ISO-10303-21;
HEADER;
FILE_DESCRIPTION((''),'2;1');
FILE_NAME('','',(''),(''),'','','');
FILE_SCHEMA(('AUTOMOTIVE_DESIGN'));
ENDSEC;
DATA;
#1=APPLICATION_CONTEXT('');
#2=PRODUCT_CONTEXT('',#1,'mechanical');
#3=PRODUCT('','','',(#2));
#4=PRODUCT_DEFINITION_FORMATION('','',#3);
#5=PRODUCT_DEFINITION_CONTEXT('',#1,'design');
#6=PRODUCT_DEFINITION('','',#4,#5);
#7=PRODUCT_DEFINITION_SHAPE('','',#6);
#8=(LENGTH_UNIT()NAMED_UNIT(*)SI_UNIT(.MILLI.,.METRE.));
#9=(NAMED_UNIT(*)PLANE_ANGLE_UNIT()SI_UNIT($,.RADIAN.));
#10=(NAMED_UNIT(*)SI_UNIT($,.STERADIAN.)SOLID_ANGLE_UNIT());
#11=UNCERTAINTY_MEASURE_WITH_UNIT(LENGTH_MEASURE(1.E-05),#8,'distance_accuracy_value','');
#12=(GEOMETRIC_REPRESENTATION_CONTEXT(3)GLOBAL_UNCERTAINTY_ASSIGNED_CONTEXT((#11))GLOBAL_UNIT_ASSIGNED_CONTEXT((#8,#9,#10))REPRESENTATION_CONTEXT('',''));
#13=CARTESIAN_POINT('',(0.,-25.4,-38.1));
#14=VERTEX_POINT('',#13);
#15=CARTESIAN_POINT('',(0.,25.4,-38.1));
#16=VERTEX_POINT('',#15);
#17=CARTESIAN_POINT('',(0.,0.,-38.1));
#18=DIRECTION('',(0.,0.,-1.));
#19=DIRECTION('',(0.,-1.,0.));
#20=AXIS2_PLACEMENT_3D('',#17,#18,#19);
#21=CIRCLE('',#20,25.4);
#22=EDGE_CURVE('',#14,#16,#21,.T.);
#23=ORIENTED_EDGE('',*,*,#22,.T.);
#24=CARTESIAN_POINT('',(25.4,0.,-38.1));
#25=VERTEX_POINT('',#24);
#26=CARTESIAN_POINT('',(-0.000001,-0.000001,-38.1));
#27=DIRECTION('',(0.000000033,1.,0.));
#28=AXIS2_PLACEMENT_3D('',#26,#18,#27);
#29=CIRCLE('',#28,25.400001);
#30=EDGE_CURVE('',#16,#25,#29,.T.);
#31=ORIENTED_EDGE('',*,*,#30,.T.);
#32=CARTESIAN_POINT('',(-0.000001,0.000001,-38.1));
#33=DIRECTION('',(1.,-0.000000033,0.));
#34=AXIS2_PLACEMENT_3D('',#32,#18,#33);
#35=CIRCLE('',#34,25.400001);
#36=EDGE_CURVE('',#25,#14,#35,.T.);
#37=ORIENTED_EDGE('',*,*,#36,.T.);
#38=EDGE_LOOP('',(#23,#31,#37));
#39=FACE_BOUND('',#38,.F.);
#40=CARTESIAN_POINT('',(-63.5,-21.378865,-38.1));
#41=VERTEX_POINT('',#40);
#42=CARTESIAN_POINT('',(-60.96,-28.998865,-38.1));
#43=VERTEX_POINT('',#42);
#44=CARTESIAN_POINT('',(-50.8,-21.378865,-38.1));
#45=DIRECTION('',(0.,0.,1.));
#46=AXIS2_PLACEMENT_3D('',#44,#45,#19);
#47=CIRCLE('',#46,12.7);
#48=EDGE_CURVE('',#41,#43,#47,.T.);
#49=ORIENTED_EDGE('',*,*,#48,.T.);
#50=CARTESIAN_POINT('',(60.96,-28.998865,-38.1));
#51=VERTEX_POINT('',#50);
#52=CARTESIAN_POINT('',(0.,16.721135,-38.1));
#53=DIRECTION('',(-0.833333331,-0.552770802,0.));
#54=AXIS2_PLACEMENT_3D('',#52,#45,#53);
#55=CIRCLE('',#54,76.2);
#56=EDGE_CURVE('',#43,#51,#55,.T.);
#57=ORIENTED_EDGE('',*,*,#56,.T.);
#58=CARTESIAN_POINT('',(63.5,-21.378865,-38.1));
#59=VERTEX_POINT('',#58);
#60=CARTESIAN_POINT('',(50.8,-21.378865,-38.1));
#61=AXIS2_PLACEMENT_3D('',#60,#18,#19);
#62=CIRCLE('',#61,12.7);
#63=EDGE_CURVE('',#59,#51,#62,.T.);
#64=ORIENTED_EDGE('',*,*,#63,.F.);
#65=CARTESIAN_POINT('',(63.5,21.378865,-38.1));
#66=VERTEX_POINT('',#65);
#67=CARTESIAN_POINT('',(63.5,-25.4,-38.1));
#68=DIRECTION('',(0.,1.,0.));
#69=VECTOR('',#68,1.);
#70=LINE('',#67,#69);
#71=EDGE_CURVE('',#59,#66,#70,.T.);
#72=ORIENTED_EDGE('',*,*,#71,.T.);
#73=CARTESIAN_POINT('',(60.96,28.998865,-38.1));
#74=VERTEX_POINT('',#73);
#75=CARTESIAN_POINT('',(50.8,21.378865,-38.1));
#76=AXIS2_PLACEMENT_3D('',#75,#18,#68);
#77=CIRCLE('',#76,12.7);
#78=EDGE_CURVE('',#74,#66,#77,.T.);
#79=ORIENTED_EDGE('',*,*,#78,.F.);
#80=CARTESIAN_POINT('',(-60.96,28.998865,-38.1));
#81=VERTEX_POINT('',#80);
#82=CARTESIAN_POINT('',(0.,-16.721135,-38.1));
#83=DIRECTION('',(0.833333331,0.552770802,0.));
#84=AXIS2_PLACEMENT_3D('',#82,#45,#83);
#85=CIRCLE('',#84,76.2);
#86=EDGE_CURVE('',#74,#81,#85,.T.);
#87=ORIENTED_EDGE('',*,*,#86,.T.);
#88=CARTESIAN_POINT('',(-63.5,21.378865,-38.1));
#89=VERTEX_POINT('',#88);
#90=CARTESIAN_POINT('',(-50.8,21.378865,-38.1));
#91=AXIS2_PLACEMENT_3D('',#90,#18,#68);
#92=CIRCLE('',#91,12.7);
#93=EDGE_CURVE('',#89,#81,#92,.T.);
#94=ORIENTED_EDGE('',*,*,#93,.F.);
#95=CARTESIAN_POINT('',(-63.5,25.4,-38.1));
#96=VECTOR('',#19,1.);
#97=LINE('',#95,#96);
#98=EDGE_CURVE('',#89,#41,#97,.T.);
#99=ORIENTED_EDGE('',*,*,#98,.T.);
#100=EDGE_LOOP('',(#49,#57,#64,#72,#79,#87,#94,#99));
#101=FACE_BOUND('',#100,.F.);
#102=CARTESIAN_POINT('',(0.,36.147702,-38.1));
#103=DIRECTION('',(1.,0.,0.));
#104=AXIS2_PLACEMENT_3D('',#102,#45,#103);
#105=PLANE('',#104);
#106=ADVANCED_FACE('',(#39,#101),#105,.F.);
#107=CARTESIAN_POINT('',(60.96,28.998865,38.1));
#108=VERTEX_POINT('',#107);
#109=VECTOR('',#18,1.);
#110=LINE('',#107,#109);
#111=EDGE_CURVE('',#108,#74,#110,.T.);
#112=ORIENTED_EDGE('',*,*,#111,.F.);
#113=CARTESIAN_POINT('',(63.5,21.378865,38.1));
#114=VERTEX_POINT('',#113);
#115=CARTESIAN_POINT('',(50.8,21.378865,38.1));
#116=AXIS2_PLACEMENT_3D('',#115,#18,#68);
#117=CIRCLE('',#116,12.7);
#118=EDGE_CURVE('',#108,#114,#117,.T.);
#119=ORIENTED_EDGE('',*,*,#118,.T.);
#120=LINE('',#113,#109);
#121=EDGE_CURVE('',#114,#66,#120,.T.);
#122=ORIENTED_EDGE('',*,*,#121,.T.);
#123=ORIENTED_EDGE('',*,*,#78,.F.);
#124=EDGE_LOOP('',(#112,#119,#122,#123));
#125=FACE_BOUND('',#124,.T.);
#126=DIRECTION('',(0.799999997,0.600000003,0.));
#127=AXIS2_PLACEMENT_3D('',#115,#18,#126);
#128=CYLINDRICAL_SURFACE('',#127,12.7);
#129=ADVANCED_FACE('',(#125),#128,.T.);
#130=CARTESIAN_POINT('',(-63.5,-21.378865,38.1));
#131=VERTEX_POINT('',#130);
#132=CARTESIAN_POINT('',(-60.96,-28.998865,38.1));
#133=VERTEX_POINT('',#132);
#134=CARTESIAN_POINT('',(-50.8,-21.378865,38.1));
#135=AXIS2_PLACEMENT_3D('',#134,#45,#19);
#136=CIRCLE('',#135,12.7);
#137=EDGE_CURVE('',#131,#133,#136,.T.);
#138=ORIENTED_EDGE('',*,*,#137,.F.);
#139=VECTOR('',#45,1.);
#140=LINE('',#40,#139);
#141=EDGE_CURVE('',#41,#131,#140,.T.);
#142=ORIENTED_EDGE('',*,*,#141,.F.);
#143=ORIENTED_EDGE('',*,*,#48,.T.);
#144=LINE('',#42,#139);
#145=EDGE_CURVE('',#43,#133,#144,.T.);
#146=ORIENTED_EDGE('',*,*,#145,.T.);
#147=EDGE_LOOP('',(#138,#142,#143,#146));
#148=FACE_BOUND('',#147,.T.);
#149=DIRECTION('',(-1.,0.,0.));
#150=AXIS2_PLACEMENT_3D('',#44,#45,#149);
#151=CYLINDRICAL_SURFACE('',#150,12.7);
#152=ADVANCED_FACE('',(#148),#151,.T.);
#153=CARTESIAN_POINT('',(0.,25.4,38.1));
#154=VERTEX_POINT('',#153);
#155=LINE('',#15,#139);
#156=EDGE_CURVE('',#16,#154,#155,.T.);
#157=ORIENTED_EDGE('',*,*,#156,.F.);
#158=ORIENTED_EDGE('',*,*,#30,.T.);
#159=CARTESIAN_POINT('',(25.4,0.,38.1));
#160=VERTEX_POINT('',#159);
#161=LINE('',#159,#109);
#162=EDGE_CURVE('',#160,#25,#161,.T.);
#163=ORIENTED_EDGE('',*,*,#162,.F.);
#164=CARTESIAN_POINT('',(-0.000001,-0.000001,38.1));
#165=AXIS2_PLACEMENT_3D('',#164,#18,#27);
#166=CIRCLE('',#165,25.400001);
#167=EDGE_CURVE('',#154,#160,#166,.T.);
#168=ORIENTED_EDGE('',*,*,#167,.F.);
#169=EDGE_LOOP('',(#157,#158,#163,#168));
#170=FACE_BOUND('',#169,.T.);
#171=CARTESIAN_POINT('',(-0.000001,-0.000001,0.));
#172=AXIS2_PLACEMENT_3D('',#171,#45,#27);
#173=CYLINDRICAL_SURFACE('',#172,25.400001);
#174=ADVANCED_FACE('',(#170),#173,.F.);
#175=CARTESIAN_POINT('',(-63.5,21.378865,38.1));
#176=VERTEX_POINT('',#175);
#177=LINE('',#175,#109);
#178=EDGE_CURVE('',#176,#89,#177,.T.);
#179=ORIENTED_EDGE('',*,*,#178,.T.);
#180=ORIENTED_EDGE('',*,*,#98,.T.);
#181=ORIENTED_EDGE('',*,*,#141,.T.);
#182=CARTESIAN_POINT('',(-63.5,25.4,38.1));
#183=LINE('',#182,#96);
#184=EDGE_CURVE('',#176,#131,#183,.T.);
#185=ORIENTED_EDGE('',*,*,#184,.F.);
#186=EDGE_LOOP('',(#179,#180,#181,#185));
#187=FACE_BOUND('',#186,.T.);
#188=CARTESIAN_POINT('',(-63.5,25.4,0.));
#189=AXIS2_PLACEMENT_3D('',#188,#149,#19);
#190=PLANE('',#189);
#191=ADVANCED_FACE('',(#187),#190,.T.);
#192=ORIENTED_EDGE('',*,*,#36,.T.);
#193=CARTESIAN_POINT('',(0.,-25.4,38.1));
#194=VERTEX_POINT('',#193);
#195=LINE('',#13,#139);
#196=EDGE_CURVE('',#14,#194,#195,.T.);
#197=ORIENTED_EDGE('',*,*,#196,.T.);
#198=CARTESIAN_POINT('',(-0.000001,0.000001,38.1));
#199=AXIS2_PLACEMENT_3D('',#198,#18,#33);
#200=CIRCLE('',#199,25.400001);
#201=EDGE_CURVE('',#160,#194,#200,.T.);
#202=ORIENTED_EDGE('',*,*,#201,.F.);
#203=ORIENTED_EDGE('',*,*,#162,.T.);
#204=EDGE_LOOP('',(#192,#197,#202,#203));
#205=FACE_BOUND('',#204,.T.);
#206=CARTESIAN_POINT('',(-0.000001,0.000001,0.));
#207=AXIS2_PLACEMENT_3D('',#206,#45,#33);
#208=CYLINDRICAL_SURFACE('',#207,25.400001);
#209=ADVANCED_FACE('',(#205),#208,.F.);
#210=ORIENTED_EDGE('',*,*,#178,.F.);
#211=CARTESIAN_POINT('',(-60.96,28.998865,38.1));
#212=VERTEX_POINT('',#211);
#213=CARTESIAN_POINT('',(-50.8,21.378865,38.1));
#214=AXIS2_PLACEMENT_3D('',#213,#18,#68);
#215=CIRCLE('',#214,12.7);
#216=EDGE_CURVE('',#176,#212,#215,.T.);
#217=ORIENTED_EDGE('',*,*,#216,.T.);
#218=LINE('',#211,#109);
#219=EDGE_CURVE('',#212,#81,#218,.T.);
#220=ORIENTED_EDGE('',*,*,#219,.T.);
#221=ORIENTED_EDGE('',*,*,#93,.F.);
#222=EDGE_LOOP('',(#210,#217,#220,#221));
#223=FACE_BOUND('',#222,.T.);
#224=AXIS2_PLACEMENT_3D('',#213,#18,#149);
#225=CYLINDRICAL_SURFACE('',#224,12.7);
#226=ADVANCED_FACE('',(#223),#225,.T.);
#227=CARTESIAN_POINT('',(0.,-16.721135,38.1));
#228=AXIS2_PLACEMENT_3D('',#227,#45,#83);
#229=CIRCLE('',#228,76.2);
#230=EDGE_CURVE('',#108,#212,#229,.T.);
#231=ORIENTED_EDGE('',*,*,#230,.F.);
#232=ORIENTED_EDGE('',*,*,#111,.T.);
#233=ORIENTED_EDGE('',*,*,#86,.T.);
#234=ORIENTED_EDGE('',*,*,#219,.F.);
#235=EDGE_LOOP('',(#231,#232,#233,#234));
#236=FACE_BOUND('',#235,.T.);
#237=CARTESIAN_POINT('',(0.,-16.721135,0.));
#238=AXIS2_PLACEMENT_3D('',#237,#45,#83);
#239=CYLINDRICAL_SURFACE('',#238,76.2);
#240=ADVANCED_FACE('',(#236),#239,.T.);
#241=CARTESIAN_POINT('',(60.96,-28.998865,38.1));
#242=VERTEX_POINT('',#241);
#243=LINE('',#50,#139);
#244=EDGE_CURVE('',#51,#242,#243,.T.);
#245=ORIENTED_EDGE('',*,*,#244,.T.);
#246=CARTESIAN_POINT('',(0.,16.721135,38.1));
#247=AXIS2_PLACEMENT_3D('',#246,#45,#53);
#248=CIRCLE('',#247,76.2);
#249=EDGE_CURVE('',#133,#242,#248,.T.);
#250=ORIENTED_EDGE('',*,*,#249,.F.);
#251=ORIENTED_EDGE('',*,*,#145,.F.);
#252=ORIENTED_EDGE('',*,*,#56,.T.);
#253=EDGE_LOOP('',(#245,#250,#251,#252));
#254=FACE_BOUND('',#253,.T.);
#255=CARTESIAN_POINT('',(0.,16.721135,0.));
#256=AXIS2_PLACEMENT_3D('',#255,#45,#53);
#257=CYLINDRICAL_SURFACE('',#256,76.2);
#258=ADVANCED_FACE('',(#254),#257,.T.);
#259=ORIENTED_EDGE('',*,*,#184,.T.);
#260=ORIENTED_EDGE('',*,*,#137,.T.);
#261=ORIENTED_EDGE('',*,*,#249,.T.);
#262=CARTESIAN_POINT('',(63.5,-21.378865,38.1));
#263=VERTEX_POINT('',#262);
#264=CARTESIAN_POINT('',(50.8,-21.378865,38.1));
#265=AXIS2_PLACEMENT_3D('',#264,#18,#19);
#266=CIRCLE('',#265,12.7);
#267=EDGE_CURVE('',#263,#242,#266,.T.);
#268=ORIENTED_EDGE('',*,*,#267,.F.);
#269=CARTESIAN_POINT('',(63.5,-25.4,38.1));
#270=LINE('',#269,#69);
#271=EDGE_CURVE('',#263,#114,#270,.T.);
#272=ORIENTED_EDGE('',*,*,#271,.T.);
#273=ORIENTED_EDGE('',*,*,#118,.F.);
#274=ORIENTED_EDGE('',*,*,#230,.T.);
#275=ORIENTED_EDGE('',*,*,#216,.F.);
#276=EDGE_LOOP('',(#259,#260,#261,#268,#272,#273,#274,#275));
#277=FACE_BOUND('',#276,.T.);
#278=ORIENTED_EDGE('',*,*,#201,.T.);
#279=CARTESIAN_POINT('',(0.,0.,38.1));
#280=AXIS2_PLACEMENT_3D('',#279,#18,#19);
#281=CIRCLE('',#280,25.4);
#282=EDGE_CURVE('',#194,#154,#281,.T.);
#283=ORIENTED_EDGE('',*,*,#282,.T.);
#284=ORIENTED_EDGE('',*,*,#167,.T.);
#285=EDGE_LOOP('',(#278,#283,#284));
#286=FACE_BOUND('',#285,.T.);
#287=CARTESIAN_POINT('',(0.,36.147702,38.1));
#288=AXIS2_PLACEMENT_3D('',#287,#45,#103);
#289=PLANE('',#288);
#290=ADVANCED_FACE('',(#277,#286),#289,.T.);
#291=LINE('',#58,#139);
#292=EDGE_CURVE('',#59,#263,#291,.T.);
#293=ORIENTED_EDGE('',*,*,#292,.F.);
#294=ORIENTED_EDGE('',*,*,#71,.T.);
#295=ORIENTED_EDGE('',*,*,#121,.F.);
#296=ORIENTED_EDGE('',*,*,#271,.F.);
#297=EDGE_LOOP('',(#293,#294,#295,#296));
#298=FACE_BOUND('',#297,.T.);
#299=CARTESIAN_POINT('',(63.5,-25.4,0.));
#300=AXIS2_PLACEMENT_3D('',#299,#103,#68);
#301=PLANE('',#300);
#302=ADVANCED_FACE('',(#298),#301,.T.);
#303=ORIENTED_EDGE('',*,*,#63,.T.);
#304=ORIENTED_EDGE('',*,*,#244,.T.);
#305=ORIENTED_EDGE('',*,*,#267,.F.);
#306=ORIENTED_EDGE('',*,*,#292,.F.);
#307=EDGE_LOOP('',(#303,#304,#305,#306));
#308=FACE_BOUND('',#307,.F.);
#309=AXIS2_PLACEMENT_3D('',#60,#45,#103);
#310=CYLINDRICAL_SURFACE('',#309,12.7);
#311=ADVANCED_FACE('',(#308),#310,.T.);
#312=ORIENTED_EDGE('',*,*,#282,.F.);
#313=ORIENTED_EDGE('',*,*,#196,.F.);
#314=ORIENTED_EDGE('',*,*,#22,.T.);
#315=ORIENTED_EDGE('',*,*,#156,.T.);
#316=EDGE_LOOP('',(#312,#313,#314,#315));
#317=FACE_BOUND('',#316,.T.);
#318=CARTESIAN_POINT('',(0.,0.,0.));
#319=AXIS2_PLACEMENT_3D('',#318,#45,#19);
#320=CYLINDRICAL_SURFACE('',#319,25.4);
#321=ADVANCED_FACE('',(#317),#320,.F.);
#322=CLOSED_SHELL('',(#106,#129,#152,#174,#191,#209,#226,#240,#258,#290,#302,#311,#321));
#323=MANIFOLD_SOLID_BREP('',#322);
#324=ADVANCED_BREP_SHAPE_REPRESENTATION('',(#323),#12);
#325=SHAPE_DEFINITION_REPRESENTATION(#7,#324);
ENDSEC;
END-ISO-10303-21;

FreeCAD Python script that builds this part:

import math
import FreeCAD as App
import Part
import Sketcher
from FreeCAD import Vector
Q = App.Units.Quantity


def edges_at(feature, points):
    """Names of the edges that pass closest to the given points."""
    edges = feature.Shape.Edges
    near = lambda p: min(range(len(edges)), key=lambda i: edges[i].distToShape(Part.Vertex(*p))[0])
    return sorted({f"Edge{near(p) + 1}" for p in points})

doc = App.newDocument("Part")
params = doc.addObject("Spreadsheet::Sheet", "Params")
for row, (alias, value) in enumerate([
    ("sketch1_radius", "3 in"),
    ("sketch1_radius2", "1 in"),
    ("pad1_length", "3 in"),
    ("fillet_radius", "0.5 in"),
], start=1):
    params.set(f"A{row}", alias)
    params.set(f"B{row}", "=" + value)
    params.setAlias(f"B{row}", alias)

body = doc.addObject("PartDesign::Body", "Body")

# Sketch on XY plane
sketch1 = doc.addObject("Sketcher::SketchObject", "Sketch")
body.addObject(sketch1)
sketch1.AttachmentSupport = (doc.XY_Plane, [""])
sketch1.MapMode = "FlatFace"
sketch1.addGeometry([
    Part.LineSegment(Vector(-64, 25, 0), Vector(-64, -25, 0)),  # 0
    Part.ArcOfCircle(Part.Circle(Vector(0, 17, 0), Vector(0, 0, 1), 76), math.radians(-146), math.radians(-34)),  # 1
    Part.LineSegment(Vector(64, -25, 0), Vector(64, 25, 0)),  # 2
    Part.ArcOfCircle(Part.Circle(Vector(0, -17, 0), Vector(0, 0, 1), 76), math.radians(34), math.radians(146)),  # 3
    Part.ArcOfCircle(Part.Circle(Vector(0, 0, 0), Vector(0, 0, 1), 25), math.radians(-90), math.radians(0)),  # 4
    Part.ArcOfCircle(Part.Circle(Vector(0, 0, 0), Vector(0, 0, 1), 25), math.radians(90), math.radians(270)),  # 5
    Part.ArcOfCircle(Part.Circle(Vector(0, 0, 0), Vector(0, 0, 1), 25), math.radians(0), math.radians(90)),  # 6
], False)
sketch1.addConstraint([
    Sketcher.Constraint("Coincident", 0, 2, 1, 1),
    Sketcher.Constraint("Coincident", 1, 2, 2, 1),
    Sketcher.Constraint("Coincident", 2, 2, 3, 1),
    Sketcher.Constraint("Coincident", 3, 2, 0, 1),
    Sketcher.Constraint("Tangent", 4, 1, 5, 2),
    Sketcher.Constraint("Tangent", 5, 1, 6, 2),
    Sketcher.Constraint("Tangent", 6, 1, 4, 2),
    Sketcher.Constraint("Vertical", 0),
    Sketcher.Constraint("Vertical", 2),
    Sketcher.Constraint("Coincident", 4, 3, -1, 1),
    Sketcher.Constraint("Equal", 1, 3),
    Sketcher.Constraint("Symmetric", 1, 3, 3, 3, -1, 1),
    Sketcher.Constraint("Symmetric", 0, 2, 1, 2, -2),
    Sketcher.Constraint("PointOnObject", 4, 1, -2),
    Sketcher.Constraint("PointOnObject", 5, 1, -2),
    Sketcher.Constraint("PointOnObject", 6, 1, -1),
    Sketcher.Constraint("Horizontal", 1, 2, 4, 1),
    Sketcher.Constraint("Radius", 1, Q("3 in")),
    Sketcher.Constraint("Radius", 4, Q("1 in")),
    Sketcher.Constraint("DistanceX", 0, 2, -1, 1, Q("2.5 in")),
])
sketch1.setExpression("Constraints[17]", "Params.sketch1_radius")
sketch1.setExpression("Constraints[18]", "Params.sketch1_radius2")
pad1 = doc.addObject("PartDesign::Pad", "Pad")
body.addObject(pad1)
pad1.Profile = sketch1
pad1.setExpression("Length", "Params.pad1_length")
pad1.Midplane = True
doc.recompute()

fillet = doc.addObject("PartDesign::Fillet", "Fillet")
body.addObject(fillet)
fillet.Base = (pad1, edges_at(pad1, [
    (-63.5, 25.4, 0),
    (-63.5, -25.4, 0),
    (63.5, 25.4, 0),
    (63.5, -25.4, 0),
]))
fillet.setExpression("Radius", "Params.fillet_radius")

doc.recompute()
